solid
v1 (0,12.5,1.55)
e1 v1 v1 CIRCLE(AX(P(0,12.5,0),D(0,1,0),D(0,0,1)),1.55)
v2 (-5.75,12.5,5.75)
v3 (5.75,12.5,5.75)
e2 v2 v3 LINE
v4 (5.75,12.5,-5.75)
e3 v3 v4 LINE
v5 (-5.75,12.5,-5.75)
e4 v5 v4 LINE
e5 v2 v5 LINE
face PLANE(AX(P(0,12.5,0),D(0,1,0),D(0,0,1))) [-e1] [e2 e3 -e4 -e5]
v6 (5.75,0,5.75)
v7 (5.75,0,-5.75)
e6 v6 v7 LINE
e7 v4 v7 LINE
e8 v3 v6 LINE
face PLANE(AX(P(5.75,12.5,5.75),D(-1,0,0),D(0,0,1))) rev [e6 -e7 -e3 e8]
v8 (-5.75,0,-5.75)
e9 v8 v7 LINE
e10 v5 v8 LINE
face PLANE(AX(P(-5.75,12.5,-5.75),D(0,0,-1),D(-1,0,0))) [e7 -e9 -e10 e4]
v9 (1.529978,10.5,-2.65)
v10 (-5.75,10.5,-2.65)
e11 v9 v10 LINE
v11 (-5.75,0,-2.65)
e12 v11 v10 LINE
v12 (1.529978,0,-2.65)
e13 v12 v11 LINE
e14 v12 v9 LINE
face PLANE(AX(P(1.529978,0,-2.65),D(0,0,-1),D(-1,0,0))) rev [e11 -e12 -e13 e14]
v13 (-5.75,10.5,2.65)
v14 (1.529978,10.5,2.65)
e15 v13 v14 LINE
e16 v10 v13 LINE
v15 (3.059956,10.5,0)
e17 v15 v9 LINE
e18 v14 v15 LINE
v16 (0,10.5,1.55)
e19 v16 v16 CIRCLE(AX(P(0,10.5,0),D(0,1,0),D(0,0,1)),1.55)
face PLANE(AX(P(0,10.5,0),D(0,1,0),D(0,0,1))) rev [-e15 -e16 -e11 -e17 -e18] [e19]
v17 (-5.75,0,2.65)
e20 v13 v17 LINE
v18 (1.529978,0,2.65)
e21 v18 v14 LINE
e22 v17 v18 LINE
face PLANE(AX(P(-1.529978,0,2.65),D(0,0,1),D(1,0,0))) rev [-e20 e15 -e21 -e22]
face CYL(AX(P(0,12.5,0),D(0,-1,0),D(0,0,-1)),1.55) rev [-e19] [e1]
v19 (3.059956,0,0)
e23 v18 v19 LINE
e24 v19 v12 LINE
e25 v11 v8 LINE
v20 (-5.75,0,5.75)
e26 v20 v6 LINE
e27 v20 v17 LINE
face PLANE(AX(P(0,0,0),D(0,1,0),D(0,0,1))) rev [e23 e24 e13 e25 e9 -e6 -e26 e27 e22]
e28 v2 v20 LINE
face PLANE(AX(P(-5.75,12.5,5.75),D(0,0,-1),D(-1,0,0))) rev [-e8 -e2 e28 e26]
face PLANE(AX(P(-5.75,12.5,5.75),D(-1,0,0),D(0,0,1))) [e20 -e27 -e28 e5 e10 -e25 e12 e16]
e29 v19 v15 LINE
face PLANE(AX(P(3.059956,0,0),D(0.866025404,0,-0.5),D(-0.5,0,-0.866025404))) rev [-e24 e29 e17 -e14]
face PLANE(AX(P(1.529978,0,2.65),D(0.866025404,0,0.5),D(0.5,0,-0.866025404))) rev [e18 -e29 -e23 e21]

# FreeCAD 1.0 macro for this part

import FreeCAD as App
import Part
import Sketcher

V = App.Vector
Q = App.Units.Quantity

doc = App.newDocument("Part")
params = doc.addObject("Spreadsheet::Sheet", "Params")
for row, (alias, value) in enumerate([
    ("sketch1_width", "11.5 mm"),
    ("pad1_length", "12.5 mm"),
    ("sketch2_diameter", "3.1 mm"),
    ("sketch4_width", "10.5 mm"),
    ("sketch4_height", "5.3 mm"),
], start=1):
    params.set(f"A{row}", alias)
    params.set(f"B{row}", "=" + value)
    params.setAlias(f"B{row}", alias)

body = doc.addObject("PartDesign::Body", "Body")

# Sketch on XZ plane
sketch1 = doc.addObject("Sketcher::SketchObject", "Sketch")
body.addObject(sketch1)
sketch1.AttachmentSupport = (doc.XZ_Plane, [""])
sketch1.MapMode = "FlatFace"
sketch1.addGeometry([
    Part.LineSegment(V(-5.75, -5.75, 0), V(-5.75, 5.75, 0)),
    Part.LineSegment(V(-5.75, 5.75, 0), V(5.75, 5.75, 0)),
    Part.LineSegment(V(5.75, 5.75, 0), V(5.75, -5.75, 0)),
    Part.LineSegment(V(5.75, -5.75, 0), V(-5.75, -5.75, 0)),
], False)
sketch1.addConstraint([
    Sketcher.Constraint("Coincident", 0, 2, 1, 1),
    Sketcher.Constraint("Coincident", 1, 2, 2, 1),
    Sketcher.Constraint("Coincident", 2, 2, 3, 1),
    Sketcher.Constraint("Coincident", 3, 2, 0, 1),
    Sketcher.Constraint("Vertical", 0),
    Sketcher.Constraint("Horizontal", 1),
    Sketcher.Constraint("Vertical", 2),
    Sketcher.Constraint("Horizontal", 3),
    Sketcher.Constraint("Symmetric", 0, 2, 2, 2, -1, 1),
    Sketcher.Constraint("Equal", 3, 0),
    Sketcher.Constraint("DistanceX", 1, 1, 1, 2, Q("11.5 mm")),
])
sketch1.setExpression("Constraints[10]", "Params.sketch1_width")
pad1 = doc.addObject("PartDesign::Pad", "Pad")
body.addObject(pad1)
pad1.Profile = sketch1
pad1.setExpression("Length", "Params.pad1_length")
pad1.Reversed = True

# Sketch on XZ plane
sketch2 = doc.addObject("Sketcher::SketchObject", "Sketch001")
body.addObject(sketch2)
sketch2.AttachmentSupport = (doc.XZ_Plane, [""])
sketch2.MapMode = "FlatFace"
sketch2.AttachmentOffset = App.Placement(V(0, 0, -10.5), App.Rotation())
sketch2.addGeometry(Part.Circle(V(0, 0, 0), V(0, 0, 1), 1.55), False)
sketch2.addConstraint([
    Sketcher.Constraint("Coincident", 0, 3, -1, 1),
    Sketcher.Constraint("Diameter", 0, Q("3.1 mm")),
])
sketch2.setExpression("Constraints[1]", "Params.sketch2_diameter")
pocket1 = doc.addObject("PartDesign::Pocket", "Pocket")
body.addObject(pocket1)
pocket1.Profile = sketch2
pocket1.Type = "ThroughAll"

# Sketch on XZ plane
sketch3 = doc.addObject("Sketcher::SketchObject", "Sketch002")
body.addObject(sketch3)
sketch3.AttachmentSupport = (doc.XZ_Plane, [""])
sketch3.MapMode = "FlatFace"
sketch3.AttachmentOffset = App.Placement(V(0, 0, -10.5), App.Rotation())
sketch3.addGeometry([
    Part.LineSegment(V(3.059956, 0, 0), V(1.529978, -2.65, 0)),  # 0
    Part.LineSegment(V(1.529978, -2.65, 0), V(-1.529978, -2.65, 0)),  # 1
    Part.LineSegment(V(-1.529978, -2.65, 0), V(-3.059956, 0, 0)),  # 2
    Part.LineSegment(V(-3.059956, 0, 0), V(-1.529978, 2.65, 0)),  # 3
    Part.LineSegment(V(-1.529978, 2.65, 0), V(1.529978, 2.65, 0)),  # 4
    Part.LineSegment(V(1.529978, 2.65, 0), V(3.059956, 0, 0)),  # 5
], False)
sketch3.addConstraint([
    Sketcher.Constraint("Coincident", 0, 2, 1, 1),
    Sketcher.Constraint("Coincident", 1, 2, 2, 1),
    Sketcher.Constraint("Coincident", 2, 2, 3, 1),
    Sketcher.Constraint("Coincident", 3, 2, 4, 1),
    Sketcher.Constraint("Coincident", 4, 2, 5, 1),
    Sketcher.Constraint("Coincident", 5, 2, 0, 1),
    Sketcher.Constraint("Horizontal", 1),
    Sketcher.Constraint("Horizontal", 4),
    Sketcher.Constraint("Symmetric", 0, 2, 3, 2, -1, 1),
    Sketcher.Constraint("Symmetric", 2, 2, 5, 2, -1, 1),
    Sketcher.Constraint("PointOnObject", 2, 2, -1),
    Sketcher.Constraint("Parallel", 2, 5),
    Sketcher.Constraint("Vertical", 1, 2, 3, 2),
    Sketcher.Constraint("Angle", 0, Q("-120 deg")),
    Sketcher.Constraint("DistanceY", 1, 2, 3, 2, Q("5.3 mm")),
    Sketcher.Constraint("DistanceX", 1, 2, 1, 1, Q("3.059956 mm")),
])
pocket2 = doc.addObject("PartDesign::Pocket", "Pocket001")
body.addObject(pocket2)
pocket2.Profile = sketch3
pocket2.Type = "ThroughAll"
pocket2.Reversed = True

# Sketch on YZ plane
sketch4 = doc.addObject("Sketcher::SketchObject", "Sketch003")
body.addObject(sketch4)
sketch4.AttachmentSupport = (doc.YZ_Plane, [""])
sketch4.MapMode = "FlatFace"
sketch4.addGeometry([
    Part.LineSegment(V(10.5, 2.65, 0), V(0, 2.65, 0)),
    Part.LineSegment(V(0, 2.65, 0), V(0, -2.65, 0)),
    Part.LineSegment(V(0, -2.65, 0), V(10.5, -2.65, 0)),
    Part.LineSegment(V(10.5, -2.65, 0), V(10.5, 2.65, 0)),
], False)
sketch4.addConstraint([
    Sketcher.Constraint("Coincident", 0, 2, 1, 1),
    Sketcher.Constraint("Coincident", 1, 2, 2, 1),
    Sketcher.Constraint("Coincident", 2, 2, 3, 1),
    Sketcher.Constraint("Coincident", 3, 2, 0, 1),
    Sketcher.Constraint("Horizontal", 0),
    Sketcher.Constraint("Vertical", 1),
    Sketcher.Constraint("Horizontal", 2),
    Sketcher.Constraint("Vertical", 3),
    Sketcher.Constraint("Symmetric", 0, 2, 1, 2, -1, 1),
    Sketcher.Constraint("DistanceX", 0, 2, 0, 1, Q("10.5 mm")),
    Sketcher.Constraint("DistanceY", 1, 2, 1, 1, Q("5.3 mm")),
])
sketch4.setExpression("Constraints[9]", "Params.sketch4_width")
sketch4.setExpression("Constraints[10]", "Params.sketch4_height")
pocket3 = doc.addObject("PartDesign::Pocket", "Pocket002")
body.addObject(pocket3)
pocket3.Profile = sketch4
pocket3.Type = "ThroughAll"

doc.recompute()
